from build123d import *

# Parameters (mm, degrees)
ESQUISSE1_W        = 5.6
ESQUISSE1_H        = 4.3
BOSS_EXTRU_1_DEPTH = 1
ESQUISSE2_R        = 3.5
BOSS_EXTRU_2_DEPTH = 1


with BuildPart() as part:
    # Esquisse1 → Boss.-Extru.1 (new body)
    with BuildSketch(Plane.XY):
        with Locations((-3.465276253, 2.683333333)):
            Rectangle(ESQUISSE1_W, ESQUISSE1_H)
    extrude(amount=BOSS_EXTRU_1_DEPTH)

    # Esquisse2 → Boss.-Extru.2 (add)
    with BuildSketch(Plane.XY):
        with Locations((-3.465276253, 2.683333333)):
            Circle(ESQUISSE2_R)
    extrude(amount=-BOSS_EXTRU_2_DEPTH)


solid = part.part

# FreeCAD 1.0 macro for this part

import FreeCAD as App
import Part
import Sketcher
Q = App.Units.Quantity

doc = App.newDocument("Part")
params = doc.addObject("Spreadsheet::Sheet", "Params")
for row, (alias, value) in enumerate([
    ("sketch1_width", "5.6 mm"),
    ("sketch1_height", "4.3 mm"),
    ("pad1_length", "1 mm"),
    ("sketch2_diameter", "7 mm"),
    ("pad2_length", "1 mm"),
], start=1):
    params.set(f"A{row}", alias)
    params.set(f"B{row}", "=" + value)
    params.setAlias(f"B{row}", alias)

body = doc.addObject("PartDesign::Body", "Body")

# Sketch on XY plane
sketch1 = body.newObject("Sketcher::SketchObject", "Sketch")
sketch1.AttachmentSupport = (doc.getObject("XY_Plane"), [""])
sketch1.MapMode = "FlatFace"
sketch1.addGeometry(Part.LineSegment(App.Vector(-6.3, 4.8, 0), App.Vector(-6.3, 0.5, 0)), False)
sketch1.addGeometry(Part.LineSegment(App.Vector(-6.3, 0.5, 0), App.Vector(-0.7, 0.5, 0)), False)
sketch1.addGeometry(Part.LineSegment(App.Vector(-0.7, 0.5, 0), App.Vector(-0.7, 4.8, 0)), False)
sketch1.addGeometry(Part.LineSegment(App.Vector(-0.7, 4.8, 0), App.Vector(-6.3, 4.8, 0)), False)
sketch1.addConstraint(Sketcher.Constraint("Coincident", 0, 2, 1, 1))
sketch1.addConstraint(Sketcher.Constraint("Coincident", 1, 2, 2, 1))
sketch1.addConstraint(Sketcher.Constraint("Coincident", 2, 2, 3, 1))
sketch1.addConstraint(Sketcher.Constraint("Coincident", 3, 2, 0, 1))
sketch1.addConstraint(Sketcher.Constraint("Vertical", 0))
sketch1.addConstraint(Sketcher.Constraint("Horizontal", 1))
sketch1.addConstraint(Sketcher.Constraint("Vertical", 2))
sketch1.addConstraint(Sketcher.Constraint("Horizontal", 3))
sketch1.addConstraint(Sketcher.Constraint("DistanceX", 1, 1, 1, 2, Q("5.6 mm")))
sketch1.addConstraint(Sketcher.Constraint("DistanceY", 0, 2, 0, 1, Q("4.3 mm")))
sketch1.addConstraint(Sketcher.Constraint("DistanceX", 0, 2, -1, 1, Q("6.265276 mm")))
sketch1.addConstraint(Sketcher.Constraint("DistanceY", -1, 1, 0, 2, Q("0.533333 mm")))
sketch1.setExpression("Constraints[8]", "Params.sketch1_width")
sketch1.setExpression("Constraints[9]", "Params.sketch1_height")
pad1 = body.newObject("PartDesign::Pad", "Pad")
pad1.Profile = sketch1
pad1.setExpression("Length", "Params.pad1_length")

# Sketch on XY plane
sketch2 = body.newObject("Sketcher::SketchObject", "Sketch001")
sketch2.AttachmentSupport = (doc.getObject("XY_Plane"), [""])
sketch2.MapMode = "FlatFace"
sketch2.addGeometry(Part.Circle(App.Vector(-3.5, 2.7, 0), App.Vector(0, 0, 1), 3.5), False)
sketch2.addConstraint(Sketcher.Constraint("Diameter", 0, Q("7 mm")))
sketch2.addConstraint(Sketcher.Constraint("DistanceX", 0, 3, -1, 1, Q("3.465276 mm")))
sketch2.addConstraint(Sketcher.Constraint("DistanceY", -1, 1, 0, 3, Q("2.683333 mm")))
sketch2.setExpression("Constraints[0]", "Params.sketch2_diameter")
pad2 = body.newObject("PartDesign::Pad", "Pad001")
pad2.Profile = sketch2
pad2.setExpression("Length", "Params.pad2_length")
pad2.Reversed = True

doc.recompute()
